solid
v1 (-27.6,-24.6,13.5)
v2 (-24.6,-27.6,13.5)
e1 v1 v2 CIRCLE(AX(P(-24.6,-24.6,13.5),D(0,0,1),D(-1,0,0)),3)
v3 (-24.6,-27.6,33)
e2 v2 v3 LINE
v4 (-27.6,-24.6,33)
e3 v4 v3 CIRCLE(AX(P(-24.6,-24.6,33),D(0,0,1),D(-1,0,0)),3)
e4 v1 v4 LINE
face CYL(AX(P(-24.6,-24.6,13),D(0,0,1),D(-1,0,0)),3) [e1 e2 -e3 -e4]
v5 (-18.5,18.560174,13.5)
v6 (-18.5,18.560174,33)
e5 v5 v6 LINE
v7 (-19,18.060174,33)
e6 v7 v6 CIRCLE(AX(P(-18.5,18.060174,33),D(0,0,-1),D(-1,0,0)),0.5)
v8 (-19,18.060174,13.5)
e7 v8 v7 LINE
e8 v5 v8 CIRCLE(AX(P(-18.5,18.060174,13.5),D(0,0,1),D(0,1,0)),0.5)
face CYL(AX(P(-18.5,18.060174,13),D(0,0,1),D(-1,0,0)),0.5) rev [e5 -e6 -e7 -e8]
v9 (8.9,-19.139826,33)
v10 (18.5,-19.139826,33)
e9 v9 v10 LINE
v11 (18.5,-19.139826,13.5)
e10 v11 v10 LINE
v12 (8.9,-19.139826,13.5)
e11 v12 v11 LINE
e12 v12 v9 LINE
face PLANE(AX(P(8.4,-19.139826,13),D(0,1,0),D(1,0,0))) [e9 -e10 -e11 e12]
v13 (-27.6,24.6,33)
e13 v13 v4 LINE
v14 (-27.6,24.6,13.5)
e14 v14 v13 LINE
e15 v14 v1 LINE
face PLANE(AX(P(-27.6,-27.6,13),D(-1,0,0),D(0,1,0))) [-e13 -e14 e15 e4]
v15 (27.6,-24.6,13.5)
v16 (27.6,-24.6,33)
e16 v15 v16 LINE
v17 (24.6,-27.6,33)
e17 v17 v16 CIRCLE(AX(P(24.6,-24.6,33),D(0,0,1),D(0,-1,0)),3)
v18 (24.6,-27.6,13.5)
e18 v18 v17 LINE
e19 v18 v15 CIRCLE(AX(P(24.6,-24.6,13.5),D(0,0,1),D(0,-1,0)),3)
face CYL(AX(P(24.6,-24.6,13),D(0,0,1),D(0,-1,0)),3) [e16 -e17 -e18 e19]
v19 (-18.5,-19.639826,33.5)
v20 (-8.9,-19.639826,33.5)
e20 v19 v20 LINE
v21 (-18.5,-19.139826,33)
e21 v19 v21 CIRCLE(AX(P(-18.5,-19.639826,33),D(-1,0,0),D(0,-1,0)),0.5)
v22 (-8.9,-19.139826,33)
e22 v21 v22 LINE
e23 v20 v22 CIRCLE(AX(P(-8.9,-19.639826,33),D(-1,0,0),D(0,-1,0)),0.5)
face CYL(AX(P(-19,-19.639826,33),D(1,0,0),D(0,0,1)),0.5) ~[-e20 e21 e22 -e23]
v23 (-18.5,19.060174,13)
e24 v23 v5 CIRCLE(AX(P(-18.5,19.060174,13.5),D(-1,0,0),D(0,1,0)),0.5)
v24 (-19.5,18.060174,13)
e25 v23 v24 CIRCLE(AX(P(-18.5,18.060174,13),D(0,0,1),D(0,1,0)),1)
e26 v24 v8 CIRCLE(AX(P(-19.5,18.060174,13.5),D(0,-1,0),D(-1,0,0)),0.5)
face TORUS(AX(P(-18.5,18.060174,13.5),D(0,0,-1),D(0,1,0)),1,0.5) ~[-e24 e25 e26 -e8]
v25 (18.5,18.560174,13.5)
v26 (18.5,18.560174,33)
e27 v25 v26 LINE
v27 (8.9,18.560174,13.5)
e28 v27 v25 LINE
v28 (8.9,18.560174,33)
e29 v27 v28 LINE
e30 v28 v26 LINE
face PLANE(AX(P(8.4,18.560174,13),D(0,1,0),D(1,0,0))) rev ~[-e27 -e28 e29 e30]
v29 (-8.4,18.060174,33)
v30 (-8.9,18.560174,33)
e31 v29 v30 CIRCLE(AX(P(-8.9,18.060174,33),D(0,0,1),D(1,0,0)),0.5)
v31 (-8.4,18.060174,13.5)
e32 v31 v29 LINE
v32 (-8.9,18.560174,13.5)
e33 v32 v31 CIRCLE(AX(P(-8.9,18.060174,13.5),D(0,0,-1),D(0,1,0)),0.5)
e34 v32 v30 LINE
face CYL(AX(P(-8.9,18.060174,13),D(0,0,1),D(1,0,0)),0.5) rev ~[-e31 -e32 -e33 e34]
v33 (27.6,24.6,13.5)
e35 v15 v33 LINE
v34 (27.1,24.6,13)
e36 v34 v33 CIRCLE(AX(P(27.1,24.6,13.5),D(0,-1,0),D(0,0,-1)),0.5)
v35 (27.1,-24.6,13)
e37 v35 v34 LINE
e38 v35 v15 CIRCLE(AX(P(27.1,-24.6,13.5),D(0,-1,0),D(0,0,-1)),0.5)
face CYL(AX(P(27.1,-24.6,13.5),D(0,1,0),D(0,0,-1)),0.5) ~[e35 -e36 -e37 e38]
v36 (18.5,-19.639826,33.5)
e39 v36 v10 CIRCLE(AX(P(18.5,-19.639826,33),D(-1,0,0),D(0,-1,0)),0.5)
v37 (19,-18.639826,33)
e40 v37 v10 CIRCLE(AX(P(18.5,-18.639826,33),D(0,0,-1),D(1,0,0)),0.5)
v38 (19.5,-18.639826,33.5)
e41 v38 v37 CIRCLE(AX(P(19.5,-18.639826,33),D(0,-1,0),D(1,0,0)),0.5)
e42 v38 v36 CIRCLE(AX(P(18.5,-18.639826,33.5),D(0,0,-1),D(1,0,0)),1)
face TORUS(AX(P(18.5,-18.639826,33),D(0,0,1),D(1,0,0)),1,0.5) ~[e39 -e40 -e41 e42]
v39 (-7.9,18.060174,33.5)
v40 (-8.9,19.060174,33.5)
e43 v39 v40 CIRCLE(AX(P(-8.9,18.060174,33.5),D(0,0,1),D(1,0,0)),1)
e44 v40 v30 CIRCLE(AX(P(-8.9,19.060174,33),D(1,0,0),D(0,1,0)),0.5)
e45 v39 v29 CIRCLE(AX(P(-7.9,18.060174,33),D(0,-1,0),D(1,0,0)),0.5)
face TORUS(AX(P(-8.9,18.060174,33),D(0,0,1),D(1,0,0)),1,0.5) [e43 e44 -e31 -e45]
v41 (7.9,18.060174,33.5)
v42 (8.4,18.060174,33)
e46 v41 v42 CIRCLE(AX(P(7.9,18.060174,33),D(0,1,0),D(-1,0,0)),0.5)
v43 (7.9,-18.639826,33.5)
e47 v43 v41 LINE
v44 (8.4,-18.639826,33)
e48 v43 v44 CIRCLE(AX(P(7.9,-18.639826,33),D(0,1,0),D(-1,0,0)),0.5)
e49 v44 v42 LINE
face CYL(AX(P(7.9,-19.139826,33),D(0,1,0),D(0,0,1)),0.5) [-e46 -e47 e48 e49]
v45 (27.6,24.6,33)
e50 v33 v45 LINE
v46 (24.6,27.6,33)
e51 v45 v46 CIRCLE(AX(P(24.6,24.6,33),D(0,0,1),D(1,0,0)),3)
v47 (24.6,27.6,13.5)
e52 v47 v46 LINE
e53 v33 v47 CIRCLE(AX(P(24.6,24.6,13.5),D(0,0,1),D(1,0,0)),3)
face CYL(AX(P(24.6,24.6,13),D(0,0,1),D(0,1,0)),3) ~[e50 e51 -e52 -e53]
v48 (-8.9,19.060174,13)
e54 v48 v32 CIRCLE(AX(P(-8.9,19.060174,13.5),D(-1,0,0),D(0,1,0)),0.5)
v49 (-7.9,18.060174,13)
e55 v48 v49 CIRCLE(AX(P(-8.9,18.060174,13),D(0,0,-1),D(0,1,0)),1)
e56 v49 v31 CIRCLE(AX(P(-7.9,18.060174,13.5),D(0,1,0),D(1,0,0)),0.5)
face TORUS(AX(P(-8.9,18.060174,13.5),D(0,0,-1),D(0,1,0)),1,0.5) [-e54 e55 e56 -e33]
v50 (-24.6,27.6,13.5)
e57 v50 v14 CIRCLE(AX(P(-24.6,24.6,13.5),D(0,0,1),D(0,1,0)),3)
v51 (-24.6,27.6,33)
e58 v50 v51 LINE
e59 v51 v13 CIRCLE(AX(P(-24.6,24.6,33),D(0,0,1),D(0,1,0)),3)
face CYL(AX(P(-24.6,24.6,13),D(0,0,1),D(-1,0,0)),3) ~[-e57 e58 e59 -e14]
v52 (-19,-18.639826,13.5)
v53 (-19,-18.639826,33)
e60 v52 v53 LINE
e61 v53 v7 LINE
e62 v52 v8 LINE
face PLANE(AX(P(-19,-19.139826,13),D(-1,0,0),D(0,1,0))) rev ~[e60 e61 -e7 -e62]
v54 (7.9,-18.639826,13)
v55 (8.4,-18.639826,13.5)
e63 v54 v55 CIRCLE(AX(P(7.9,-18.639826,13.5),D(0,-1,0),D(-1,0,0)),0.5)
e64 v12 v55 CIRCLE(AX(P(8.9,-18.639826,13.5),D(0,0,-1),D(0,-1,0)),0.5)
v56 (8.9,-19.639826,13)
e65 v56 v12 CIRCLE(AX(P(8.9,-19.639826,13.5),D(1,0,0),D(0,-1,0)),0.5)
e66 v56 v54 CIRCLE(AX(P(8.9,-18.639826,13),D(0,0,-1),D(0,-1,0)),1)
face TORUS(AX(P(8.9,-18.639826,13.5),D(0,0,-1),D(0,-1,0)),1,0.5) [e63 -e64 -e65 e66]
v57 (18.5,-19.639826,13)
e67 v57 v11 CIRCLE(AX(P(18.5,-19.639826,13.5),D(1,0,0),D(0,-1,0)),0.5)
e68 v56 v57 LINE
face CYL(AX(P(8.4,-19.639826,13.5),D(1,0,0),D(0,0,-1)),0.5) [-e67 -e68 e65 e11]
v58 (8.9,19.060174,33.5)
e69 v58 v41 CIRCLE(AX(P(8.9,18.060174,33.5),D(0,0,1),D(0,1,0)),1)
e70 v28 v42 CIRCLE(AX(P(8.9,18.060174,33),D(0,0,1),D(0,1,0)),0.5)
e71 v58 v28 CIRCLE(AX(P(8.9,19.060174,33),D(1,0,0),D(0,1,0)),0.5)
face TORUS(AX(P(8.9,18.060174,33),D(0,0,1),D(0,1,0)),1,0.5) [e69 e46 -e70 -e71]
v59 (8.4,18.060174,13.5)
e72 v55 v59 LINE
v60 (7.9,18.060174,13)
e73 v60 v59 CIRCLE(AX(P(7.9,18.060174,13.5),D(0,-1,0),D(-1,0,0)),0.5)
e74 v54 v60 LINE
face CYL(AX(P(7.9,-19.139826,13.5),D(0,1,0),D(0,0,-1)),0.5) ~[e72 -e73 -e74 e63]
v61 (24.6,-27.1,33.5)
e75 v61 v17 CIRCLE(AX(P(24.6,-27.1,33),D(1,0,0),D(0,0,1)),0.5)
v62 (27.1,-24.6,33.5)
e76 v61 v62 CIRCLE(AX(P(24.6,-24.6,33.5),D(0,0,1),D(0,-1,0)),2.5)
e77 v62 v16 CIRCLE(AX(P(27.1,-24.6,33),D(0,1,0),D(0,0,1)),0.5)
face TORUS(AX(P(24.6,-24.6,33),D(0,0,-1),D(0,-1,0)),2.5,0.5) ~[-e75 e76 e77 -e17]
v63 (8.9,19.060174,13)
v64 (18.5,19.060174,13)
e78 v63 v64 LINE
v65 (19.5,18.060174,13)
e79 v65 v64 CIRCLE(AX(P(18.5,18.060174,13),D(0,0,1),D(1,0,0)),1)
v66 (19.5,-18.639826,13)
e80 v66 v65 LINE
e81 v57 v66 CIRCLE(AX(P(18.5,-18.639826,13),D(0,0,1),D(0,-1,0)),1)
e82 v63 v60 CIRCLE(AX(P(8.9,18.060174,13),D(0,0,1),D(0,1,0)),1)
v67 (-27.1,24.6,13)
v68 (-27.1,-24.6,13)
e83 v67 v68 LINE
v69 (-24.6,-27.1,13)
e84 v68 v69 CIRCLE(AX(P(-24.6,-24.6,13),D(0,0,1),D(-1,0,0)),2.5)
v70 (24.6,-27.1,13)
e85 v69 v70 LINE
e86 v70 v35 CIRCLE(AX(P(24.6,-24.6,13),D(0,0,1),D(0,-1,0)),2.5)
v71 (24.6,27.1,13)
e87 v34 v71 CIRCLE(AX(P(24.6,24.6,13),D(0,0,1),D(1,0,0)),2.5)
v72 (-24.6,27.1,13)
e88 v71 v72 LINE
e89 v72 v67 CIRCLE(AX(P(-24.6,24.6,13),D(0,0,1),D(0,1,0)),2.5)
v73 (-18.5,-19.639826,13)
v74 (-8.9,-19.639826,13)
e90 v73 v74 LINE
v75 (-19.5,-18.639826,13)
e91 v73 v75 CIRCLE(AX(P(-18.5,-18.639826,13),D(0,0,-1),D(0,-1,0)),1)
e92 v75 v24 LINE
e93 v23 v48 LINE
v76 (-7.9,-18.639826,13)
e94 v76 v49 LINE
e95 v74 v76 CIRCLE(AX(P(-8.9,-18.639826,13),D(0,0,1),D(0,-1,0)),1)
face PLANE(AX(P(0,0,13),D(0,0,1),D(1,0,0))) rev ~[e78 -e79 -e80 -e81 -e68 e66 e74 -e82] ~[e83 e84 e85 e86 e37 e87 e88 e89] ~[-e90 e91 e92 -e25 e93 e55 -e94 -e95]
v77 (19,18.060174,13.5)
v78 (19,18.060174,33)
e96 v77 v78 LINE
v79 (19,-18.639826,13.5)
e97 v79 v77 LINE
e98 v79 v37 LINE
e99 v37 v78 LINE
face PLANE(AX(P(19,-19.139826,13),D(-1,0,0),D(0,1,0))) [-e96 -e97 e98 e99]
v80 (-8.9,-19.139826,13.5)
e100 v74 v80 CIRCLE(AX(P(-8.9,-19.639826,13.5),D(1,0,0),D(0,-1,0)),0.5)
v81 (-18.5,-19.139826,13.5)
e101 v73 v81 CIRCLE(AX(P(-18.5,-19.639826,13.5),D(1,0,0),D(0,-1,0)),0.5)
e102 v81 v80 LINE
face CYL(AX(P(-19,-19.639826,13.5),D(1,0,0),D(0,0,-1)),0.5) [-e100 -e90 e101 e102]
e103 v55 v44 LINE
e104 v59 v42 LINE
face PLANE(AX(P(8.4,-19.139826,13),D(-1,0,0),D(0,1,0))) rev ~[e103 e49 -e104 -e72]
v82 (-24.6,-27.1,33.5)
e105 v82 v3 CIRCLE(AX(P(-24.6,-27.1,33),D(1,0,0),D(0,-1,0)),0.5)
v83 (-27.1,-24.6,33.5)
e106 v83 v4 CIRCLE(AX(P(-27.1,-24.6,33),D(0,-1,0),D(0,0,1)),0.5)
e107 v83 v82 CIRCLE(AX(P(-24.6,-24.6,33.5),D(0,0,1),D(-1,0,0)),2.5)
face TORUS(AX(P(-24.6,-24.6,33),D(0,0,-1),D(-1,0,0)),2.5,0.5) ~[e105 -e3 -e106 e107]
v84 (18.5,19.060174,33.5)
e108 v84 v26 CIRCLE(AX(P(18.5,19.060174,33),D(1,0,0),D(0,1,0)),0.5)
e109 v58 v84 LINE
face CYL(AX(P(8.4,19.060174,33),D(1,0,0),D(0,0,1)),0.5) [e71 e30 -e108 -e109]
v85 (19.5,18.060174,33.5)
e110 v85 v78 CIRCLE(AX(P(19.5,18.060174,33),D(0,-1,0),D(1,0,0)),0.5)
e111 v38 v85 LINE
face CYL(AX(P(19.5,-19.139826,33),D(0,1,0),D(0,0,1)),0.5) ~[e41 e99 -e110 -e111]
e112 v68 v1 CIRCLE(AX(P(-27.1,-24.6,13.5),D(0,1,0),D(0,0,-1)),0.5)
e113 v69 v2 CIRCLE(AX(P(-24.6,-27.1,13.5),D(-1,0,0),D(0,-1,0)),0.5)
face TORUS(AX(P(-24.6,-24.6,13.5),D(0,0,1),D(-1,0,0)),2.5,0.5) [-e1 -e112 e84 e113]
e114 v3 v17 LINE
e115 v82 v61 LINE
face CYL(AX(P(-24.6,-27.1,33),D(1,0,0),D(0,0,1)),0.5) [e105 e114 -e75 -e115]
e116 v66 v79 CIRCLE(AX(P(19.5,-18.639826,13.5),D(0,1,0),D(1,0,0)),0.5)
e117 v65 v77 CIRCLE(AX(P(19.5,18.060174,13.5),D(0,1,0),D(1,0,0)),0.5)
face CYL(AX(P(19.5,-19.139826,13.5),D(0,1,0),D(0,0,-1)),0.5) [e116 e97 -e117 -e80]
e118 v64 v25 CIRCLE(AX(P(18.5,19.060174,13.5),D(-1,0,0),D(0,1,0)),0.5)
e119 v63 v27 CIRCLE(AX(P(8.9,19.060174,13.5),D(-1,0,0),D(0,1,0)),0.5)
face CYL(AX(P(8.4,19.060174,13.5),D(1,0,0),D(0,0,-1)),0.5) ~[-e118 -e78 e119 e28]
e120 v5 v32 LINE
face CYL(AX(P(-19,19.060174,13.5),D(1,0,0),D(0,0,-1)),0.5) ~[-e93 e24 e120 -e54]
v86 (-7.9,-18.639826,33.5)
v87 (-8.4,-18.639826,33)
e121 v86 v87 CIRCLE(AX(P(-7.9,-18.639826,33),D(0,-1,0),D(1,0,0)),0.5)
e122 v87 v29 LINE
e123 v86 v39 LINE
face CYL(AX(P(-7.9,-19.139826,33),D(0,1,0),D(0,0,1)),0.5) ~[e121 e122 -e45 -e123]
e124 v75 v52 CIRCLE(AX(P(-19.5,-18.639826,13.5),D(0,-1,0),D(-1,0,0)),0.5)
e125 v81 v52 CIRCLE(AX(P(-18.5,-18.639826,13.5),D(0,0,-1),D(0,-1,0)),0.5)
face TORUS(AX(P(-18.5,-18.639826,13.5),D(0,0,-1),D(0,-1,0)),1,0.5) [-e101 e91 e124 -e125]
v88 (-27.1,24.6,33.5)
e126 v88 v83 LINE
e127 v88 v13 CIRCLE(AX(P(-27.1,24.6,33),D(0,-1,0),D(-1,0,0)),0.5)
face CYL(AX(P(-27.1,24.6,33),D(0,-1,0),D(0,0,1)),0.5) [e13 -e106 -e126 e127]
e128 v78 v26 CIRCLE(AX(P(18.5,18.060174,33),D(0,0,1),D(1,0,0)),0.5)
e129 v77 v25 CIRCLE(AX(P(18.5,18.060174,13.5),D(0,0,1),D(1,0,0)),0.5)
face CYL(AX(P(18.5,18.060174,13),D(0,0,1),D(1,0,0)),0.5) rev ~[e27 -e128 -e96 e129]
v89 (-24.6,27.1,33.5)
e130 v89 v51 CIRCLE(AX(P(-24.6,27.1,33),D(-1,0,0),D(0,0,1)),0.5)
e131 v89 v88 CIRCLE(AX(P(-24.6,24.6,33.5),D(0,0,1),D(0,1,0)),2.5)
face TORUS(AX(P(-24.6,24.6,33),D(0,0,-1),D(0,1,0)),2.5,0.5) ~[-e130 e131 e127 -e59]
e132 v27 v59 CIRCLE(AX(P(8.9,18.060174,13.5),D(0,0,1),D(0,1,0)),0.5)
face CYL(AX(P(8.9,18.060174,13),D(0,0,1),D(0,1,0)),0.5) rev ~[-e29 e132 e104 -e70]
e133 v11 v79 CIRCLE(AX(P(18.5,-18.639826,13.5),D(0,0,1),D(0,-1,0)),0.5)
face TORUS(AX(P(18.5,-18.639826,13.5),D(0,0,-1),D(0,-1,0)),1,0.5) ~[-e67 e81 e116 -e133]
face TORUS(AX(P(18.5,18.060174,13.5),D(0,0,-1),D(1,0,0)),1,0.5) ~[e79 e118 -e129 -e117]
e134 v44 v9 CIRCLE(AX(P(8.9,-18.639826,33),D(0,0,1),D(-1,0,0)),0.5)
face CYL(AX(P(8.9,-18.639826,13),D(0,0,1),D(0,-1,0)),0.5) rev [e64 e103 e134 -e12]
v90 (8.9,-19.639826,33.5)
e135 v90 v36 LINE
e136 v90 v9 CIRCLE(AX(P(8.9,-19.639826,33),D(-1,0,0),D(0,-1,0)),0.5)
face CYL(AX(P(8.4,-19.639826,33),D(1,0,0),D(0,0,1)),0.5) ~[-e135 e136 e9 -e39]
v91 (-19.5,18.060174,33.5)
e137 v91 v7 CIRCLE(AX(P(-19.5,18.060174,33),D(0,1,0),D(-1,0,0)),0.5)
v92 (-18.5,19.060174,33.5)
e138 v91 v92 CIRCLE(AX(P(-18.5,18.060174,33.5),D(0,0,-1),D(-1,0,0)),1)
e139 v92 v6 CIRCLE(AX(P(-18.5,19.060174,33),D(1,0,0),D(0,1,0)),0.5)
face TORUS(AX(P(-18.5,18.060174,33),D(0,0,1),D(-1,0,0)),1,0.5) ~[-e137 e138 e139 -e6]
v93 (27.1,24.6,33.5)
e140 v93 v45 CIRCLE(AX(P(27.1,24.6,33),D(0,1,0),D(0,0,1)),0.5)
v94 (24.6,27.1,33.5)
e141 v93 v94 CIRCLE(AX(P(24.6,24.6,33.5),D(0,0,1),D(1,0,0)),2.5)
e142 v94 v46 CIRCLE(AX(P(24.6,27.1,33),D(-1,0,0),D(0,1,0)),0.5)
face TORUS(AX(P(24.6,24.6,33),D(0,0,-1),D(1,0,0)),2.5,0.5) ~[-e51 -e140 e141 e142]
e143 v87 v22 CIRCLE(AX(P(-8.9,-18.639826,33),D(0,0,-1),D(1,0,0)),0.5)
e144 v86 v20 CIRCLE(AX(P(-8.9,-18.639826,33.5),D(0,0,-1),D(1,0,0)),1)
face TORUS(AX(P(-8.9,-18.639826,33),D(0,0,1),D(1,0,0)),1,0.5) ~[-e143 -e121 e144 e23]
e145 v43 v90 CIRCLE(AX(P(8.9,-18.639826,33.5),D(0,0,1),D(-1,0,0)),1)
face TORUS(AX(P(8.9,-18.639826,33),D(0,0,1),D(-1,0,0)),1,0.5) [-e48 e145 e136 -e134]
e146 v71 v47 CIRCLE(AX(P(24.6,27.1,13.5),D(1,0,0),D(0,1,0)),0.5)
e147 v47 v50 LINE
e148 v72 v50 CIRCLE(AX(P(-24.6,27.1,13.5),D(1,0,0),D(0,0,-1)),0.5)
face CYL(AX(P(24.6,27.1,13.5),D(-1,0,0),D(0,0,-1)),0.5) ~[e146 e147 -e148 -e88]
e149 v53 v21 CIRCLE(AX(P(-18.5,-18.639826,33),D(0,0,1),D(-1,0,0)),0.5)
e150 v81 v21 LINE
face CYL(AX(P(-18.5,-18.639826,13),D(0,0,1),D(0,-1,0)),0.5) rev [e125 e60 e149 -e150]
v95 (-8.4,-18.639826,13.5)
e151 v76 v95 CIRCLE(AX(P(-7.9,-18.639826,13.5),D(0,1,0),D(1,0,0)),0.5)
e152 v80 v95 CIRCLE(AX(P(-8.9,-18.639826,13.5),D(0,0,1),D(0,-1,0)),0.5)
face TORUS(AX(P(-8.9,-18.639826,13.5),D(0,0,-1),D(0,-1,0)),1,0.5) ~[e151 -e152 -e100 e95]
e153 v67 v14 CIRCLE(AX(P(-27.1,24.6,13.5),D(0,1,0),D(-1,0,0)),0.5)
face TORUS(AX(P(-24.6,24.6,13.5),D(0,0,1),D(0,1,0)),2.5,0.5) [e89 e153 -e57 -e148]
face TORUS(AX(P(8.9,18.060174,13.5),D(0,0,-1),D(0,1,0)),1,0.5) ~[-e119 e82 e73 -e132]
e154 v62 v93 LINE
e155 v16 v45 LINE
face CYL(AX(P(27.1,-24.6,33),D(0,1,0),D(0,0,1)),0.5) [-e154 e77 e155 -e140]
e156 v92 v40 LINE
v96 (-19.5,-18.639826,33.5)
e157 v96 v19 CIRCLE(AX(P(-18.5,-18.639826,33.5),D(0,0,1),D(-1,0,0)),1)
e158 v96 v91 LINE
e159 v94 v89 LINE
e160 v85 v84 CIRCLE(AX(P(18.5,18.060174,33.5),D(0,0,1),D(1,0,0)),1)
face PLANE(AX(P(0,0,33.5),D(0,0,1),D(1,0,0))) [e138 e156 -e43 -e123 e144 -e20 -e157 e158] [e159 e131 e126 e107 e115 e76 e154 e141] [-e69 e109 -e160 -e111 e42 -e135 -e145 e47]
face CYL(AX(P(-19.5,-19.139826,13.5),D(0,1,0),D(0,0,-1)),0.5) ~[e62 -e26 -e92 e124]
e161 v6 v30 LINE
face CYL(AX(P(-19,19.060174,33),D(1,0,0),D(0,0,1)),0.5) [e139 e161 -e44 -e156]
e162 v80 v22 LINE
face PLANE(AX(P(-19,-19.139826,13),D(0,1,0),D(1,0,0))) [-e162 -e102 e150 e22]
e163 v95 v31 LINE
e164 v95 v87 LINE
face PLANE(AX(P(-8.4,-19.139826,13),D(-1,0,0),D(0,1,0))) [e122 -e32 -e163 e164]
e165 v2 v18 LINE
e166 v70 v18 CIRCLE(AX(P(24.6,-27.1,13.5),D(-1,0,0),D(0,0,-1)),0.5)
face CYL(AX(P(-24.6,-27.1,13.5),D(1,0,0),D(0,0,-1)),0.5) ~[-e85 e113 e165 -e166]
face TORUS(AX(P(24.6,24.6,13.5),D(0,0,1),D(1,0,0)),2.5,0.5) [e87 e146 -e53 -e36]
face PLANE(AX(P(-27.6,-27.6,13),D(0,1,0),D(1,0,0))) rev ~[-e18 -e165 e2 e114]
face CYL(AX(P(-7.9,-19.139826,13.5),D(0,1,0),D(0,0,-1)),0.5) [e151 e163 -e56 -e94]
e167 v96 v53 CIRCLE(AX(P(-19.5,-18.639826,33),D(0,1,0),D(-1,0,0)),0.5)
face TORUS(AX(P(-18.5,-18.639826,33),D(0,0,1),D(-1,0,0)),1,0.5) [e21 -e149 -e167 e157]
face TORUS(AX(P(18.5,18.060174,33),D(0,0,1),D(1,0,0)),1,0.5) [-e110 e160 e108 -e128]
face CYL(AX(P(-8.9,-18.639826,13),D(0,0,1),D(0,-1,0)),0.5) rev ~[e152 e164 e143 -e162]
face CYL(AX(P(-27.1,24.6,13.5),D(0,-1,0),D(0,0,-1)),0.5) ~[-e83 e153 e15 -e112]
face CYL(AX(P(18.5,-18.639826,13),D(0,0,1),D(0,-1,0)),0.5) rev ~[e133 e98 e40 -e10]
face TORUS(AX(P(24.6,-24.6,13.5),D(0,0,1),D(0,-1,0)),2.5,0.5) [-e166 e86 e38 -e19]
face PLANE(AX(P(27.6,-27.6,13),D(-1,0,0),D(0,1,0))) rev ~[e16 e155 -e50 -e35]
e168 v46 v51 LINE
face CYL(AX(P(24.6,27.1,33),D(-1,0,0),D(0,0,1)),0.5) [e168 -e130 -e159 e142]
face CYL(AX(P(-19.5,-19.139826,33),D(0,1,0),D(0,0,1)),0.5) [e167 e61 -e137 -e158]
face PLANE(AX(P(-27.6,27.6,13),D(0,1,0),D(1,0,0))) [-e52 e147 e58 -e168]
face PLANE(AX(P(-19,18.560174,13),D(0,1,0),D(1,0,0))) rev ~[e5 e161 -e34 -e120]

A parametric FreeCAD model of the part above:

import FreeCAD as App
import Part
import Sketcher


def edges_at(feature, points):
    """Names of the edges that pass closest to the given points."""
    edges = feature.Shape.Edges
    near = lambda p: min(range(len(edges)), key=lambda i: edges[i].distToShape(Part.Vertex(*p))[0])
    return sorted({f"Edge{near(p) + 1}" for p in points})


def add_polygon(sketch, points):
    """Adds a closed chain of lines whose ends are joined by coincident constraints."""
    first, n = sketch.GeometryCount, len(points)
    for a, b in zip(points, points[1:] + points[:1]):
        sketch.addGeometry(Part.LineSegment(App.Vector(*a, 0), App.Vector(*b, 0)), False)
    for i in range(n):
        sketch.addConstraint(Sketcher.Constraint("Coincident", first + i, 2, first + (i + 1) % n, 1))

doc = App.newDocument("Part")
body = doc.addObject("PartDesign::Body", "Body")

# Sketch on XY plane
sketch1 = body.newObject("Sketcher::SketchObject", "Sketch")
sketch1.AttachmentSupport = (doc.getObject("XY_Plane"), [""])
sketch1.MapMode = "FlatFace"
sketch1.AttachmentOffset = App.Placement(App.Vector(0, 0, 13), App.Rotation())
add_polygon(sketch1, [(-27.6, 27.6), (-27.6, -27.6), (27.6, -27.6), (27.6, 27.6)])  # lines 0-3
add_polygon(sketch1, [(-8.4, -19.139826), (-19, -19.139826), (-19, 18.560174), (-8.4, 18.560174)])  # lines 4-7
add_polygon(sketch1, [(19, -19.139826), (8.4, -19.139826), (8.4, 18.560174), (19, 18.560174)])  # lines 8-11
sketch1.addConstraint(Sketcher.Constraint("Vertical", 0))
sketch1.addConstraint(Sketcher.Constraint("Horizontal", 1))
sketch1.addConstraint(Sketcher.Constraint("Vertical", 2))
sketch1.addConstraint(Sketcher.Constraint("Horizontal", 3))
sketch1.addConstraint(Sketcher.Constraint("Horizontal", 4))
sketch1.addConstraint(Sketcher.Constraint("Vertical", 5))
sketch1.addConstraint(Sketcher.Constraint("Horizontal", 6))
sketch1.addConstraint(Sketcher.Constraint("Vertical", 7))
sketch1.addConstraint(Sketcher.Constraint("Horizontal", 8))
sketch1.addConstraint(Sketcher.Constraint("Vertical", 9))
sketch1.addConstraint(Sketcher.Constraint("Horizontal", 10))
sketch1.addConstraint(Sketcher.Constraint("Vertical", 11))
sketch1.addConstraint(Sketcher.Constraint("Symmetric", 0, 2, 2, 2, -1, 1))
sketch1.addConstraint(Sketcher.Constraint("Symmetric", 7, 2, 8, 2, -2))
sketch1.addConstraint(Sketcher.Constraint("Symmetric", 5, 2, 10, 2, -2))
sketch1.addConstraint(Sketcher.Constraint("Equal", 3, 0))
sketch1.addConstraint(Sketcher.Constraint("DistanceX", 1, 1, 1, 2, 55.2))
sketch1.addConstraint(Sketcher.Constraint("DistanceX", 4, 2, 4, 1, 10.6))
sketch1.addConstraint(Sketcher.Constraint("DistanceY", 5, 1, 5, 2, 37.7))
sketch1.addConstraint(Sketcher.Constraint("DistanceX", 4, 2, -1, 1, 19.0))
sketch1.addConstraint(Sketcher.Constraint("DistanceY", 4, 2, -1, 1, 19.139826))
pad1 = body.newObject("PartDesign::Pad", "Pad")
pad1.Profile = sketch1
pad1.Length = 20.5
doc.recompute()

fillet = body.newObject("PartDesign::Fillet", "Fillet")
fillet.Base = (pad1, edges_at(pad1, [
    (-27.6, -27.6, 23.25),
    (27.6, -27.6, 23.25),
    (27.6, 27.6, 23.25),
    (-27.6, 27.6, 23.25),
]))
fillet.Radius = 3
doc.recompute()

fillet2 = body.newObject("PartDesign::Fillet", "Fillet001")
fillet2.Base = (fillet, ["Edge1"])
fillet2.UseAllEdges = True
fillet2.Radius = 0.5

doc.recompute()
